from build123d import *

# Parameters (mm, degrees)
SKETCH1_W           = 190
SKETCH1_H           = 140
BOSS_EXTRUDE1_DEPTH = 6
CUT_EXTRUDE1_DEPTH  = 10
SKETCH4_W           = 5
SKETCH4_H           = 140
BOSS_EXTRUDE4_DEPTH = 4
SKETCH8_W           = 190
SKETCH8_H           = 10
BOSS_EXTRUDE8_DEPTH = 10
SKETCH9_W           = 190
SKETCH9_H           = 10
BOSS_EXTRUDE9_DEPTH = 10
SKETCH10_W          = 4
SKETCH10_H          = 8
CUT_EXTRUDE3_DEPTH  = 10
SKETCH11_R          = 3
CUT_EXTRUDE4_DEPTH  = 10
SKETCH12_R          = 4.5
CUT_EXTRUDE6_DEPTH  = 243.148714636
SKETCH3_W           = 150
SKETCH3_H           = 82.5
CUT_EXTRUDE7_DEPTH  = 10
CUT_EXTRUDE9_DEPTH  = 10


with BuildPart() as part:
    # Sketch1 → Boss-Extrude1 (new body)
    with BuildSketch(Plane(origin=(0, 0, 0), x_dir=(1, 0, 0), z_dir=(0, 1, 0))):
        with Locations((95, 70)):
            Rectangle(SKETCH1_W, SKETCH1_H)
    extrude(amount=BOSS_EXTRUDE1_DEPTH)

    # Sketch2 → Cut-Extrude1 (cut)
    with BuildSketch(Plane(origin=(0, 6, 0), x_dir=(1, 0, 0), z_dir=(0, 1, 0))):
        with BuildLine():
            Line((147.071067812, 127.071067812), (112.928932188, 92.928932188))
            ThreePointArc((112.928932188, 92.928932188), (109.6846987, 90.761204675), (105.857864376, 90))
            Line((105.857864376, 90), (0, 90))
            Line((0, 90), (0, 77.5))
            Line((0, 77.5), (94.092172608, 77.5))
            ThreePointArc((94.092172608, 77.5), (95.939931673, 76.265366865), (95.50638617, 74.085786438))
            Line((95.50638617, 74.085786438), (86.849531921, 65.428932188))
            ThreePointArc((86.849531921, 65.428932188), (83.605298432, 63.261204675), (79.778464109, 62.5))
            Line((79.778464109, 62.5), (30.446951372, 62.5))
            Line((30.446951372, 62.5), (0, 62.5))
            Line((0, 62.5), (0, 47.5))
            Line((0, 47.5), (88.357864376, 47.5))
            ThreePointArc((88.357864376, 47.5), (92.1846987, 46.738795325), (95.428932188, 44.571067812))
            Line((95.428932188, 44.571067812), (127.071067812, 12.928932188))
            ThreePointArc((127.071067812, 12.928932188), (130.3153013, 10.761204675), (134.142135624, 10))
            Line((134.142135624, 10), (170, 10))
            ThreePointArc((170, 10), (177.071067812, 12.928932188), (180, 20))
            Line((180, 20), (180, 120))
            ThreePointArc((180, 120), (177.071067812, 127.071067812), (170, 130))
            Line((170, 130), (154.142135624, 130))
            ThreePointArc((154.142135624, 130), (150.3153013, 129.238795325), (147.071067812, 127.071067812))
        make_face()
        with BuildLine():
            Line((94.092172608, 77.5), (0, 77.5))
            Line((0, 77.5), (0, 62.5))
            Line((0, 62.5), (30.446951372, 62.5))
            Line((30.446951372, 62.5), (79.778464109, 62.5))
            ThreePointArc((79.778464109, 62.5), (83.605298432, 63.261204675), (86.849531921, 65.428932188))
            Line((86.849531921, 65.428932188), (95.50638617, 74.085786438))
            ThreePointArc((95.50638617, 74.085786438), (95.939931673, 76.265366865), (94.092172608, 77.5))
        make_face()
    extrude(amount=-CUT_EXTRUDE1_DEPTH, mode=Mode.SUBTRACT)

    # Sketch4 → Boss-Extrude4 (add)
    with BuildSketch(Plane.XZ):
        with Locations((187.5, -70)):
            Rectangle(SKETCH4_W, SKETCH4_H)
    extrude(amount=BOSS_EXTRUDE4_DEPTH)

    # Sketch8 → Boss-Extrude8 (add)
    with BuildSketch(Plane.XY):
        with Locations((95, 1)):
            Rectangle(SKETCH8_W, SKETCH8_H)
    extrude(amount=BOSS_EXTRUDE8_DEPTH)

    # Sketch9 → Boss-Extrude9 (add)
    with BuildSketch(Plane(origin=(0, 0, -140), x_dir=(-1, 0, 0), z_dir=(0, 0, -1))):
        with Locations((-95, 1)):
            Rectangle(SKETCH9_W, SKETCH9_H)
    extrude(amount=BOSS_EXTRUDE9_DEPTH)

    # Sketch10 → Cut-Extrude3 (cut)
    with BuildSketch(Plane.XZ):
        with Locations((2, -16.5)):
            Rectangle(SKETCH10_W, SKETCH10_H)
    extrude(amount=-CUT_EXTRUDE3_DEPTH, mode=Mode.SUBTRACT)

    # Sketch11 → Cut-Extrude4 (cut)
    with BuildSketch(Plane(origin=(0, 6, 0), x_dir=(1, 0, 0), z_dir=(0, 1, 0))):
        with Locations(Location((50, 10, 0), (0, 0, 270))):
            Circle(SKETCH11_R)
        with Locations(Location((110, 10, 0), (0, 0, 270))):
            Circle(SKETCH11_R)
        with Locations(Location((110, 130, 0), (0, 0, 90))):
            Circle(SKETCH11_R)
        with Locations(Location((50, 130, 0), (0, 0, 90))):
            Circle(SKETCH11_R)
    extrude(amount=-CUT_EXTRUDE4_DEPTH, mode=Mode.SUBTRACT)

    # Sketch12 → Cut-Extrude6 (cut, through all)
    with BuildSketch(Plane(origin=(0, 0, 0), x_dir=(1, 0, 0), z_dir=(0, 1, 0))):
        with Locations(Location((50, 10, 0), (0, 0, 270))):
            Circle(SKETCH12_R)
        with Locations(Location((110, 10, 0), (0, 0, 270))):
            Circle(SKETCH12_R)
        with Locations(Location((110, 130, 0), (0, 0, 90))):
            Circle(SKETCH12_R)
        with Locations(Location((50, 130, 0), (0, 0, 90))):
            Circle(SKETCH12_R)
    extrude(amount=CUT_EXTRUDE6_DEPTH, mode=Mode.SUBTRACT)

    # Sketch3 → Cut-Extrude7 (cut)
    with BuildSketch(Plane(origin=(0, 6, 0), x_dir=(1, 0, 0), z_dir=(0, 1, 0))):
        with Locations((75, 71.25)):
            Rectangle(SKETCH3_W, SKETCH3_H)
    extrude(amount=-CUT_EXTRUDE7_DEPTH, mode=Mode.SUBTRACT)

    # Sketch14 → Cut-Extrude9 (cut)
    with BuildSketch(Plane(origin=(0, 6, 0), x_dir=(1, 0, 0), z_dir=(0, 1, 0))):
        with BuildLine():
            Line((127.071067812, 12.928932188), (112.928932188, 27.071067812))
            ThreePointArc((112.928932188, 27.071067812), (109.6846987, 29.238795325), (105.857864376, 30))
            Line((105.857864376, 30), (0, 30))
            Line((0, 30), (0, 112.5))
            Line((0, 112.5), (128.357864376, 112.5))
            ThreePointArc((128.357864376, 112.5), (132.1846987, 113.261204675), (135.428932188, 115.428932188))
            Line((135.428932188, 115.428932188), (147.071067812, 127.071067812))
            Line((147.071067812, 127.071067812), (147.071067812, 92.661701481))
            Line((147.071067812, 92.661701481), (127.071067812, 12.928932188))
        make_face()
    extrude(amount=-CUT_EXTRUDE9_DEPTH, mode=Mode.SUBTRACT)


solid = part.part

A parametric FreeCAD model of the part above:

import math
import FreeCAD as App
import Part
import Sketcher
from FreeCAD import Vector
Q = App.Units.Quantity

doc = App.newDocument("Part")
params = doc.addObject("Spreadsheet::Sheet", "Params")
for row, (alias, value) in enumerate([
    ("sketch1_width", "190 mm"),
    ("sketch1_height", "140 mm"),
    ("pad1_length", "6 mm"),
    ("sketch2_radius", "10 mm"),
    ("sketch2_height", "100 mm"),
    ("sketch2_height2", "42.5 mm"),
    ("pocket1_length", "10 mm"),
    ("sketch3_width", "5 mm"),
    ("sketch3_height", "140 mm"),
    ("pad2_length", "4 mm"),
    ("sketch4_width", "190 mm"),
    ("sketch4_height", "10 mm"),
    ("pad3_length", "10 mm"),
    ("sketch5_width", "190 mm"),
    ("sketch5_height", "10 mm"),
    ("pad4_length", "10 mm"),
    ("sketch6_width", "4 mm"),
    ("sketch6_height", "8 mm"),
    ("pocket2_length", "10 mm"),
    ("sketch7_diameter", "6 mm"),
    ("pocket3_length", "10 mm"),
    ("sketch8_diameter", "9 mm"),
    ("sketch9_width", "150 mm"),
    ("sketch9_height", "82.5 mm"),
    ("pocket5_length", "10 mm"),
    ("sketch10_radius", "10 mm"),
    ("sketch10_length", "20 mm"),
    ("sketch10_height", "82.5 mm"),
    ("pocket6_length", "10 mm"),
], start=1):
    params.set(f"A{row}", alias)
    params.set(f"B{row}", "=" + value)
    params.setAlias(f"B{row}", alias)

body = doc.addObject("PartDesign::Body", "Body")

sketch1 = body.newObject("Sketcher::SketchObject", "Sketch")
sketch1.AttachmentSupport = (doc.getObject("XZ_Plane"), [""])
sketch1.MapMode = "FlatFace"
sketch1.addGeometry([
    Part.LineSegment(Vector(0, -140, 0), Vector(0, 0, 0)),
    Part.LineSegment(Vector(0, 0, 0), Vector(190, 0, 0)),
    Part.LineSegment(Vector(190, 0, 0), Vector(190, -140, 0)),
    Part.LineSegment(Vector(190, -140, 0), Vector(0, -140, 0)),
], False)
sketch1.addConstraint([
    Sketcher.Constraint("Coincident", 0, 2, 1, 1),
    Sketcher.Constraint("Coincident", 1, 2, 2, 1),
    Sketcher.Constraint("Coincident", 2, 2, 3, 1),
    Sketcher.Constraint("Coincident", 3, 2, 0, 1),
    Sketcher.Constraint("Vertical", 0),
    Sketcher.Constraint("Horizontal", 1),
    Sketcher.Constraint("Vertical", 2),
    Sketcher.Constraint("Horizontal", 3),
    Sketcher.Constraint("Coincident", 0, 2, -1, 1),
    Sketcher.Constraint("DistanceX", 1, 1, 1, 2, Q("190 mm")),
    Sketcher.Constraint("DistanceY", 0, 1, 0, 2, Q("140 mm")),
])
sketch1.setExpression("Constraints[9]", "Params.sketch1_width")
sketch1.setExpression("Constraints[10]", "Params.sketch1_height")
pad1 = body.newObject("PartDesign::Pad", "Pad")
pad1.Profile = sketch1
pad1.setExpression("Length", "Params.pad1_length")
pad1.Reversed = True

sketch2 = body.newObject("Sketcher::SketchObject", "Sketch001")
sketch2.AttachmentSupport = (doc.getObject("XZ_Plane"), [""])
sketch2.MapMode = "FlatFace"
sketch2.AttachmentOffset = App.Placement(Vector(0, 0, -6), App.Rotation())
sketch2.addGeometry([
    Part.LineSegment(Vector(147.071068, -127.071068, 0), Vector(112.928932, -92.928932, 0)),
    Part.ArcOfCircle(Part.Circle(Vector(105.857864, -100, 0), Vector(0, 0, 1), 10), math.radians(45), math.radians(90)),
    Part.LineSegment(Vector(105.857864, -90, 0), Vector(0, -90, 0)),
    Part.LineSegment(Vector(0, -90, 0), Vector(0, -47.5, 0)),
    Part.LineSegment(Vector(0, -47.5, 0), Vector(88.357864, -47.5, 0)),
    Part.ArcOfCircle(Part.Circle(Vector(88.357864, -37.5, 0), Vector(0, 0, 1), 10), math.radians(-90), math.radians(-45)),
    Part.LineSegment(Vector(95.428932, -44.571068, 0), Vector(127.071068, -12.928932, 0)),
    Part.ArcOfCircle(Part.Circle(Vector(134.142136, -20, 0), Vector(0, 0, 1), 10), math.radians(90), math.radians(135)),
    Part.LineSegment(Vector(134.142136, -10, 0), Vector(170, -10, 0)),
    Part.ArcOfCircle(Part.Circle(Vector(170, -20, 0), Vector(0, 0, 1), 10), math.radians(0), math.radians(90)),
    Part.LineSegment(Vector(180, -20, 0), Vector(180, -120, 0)),
    Part.ArcOfCircle(Part.Circle(Vector(170, -120, 0), Vector(0, 0, 1), 10), math.radians(-90), math.radians(0)),
    Part.LineSegment(Vector(170, -130, 0), Vector(154.142136, -130, 0)),
    Part.ArcOfCircle(Part.Circle(Vector(154.142136, -120, 0), Vector(0, 0, 1), 10), math.radians(-135), math.radians(-90)),
], False)
sketch2.addConstraint([
    Sketcher.Constraint("Tangent", 0, 2, 1, 1),
    Sketcher.Constraint("Tangent", 1, 2, 2, 1),
    Sketcher.Constraint("Coincident", 2, 2, 3, 1),
    Sketcher.Constraint("Coincident", 3, 2, 4, 1),
    Sketcher.Constraint("Tangent", 4, 2, 5, 1),
    Sketcher.Constraint("Tangent", 5, 2, 6, 1),
    Sketcher.Constraint("Tangent", 6, 2, 7, 2),
    Sketcher.Constraint("Tangent", 7, 1, 8, 1),
    Sketcher.Constraint("Tangent", 8, 2, 9, 2),
    Sketcher.Constraint("Tangent", 9, 1, 10, 1),
    Sketcher.Constraint("Tangent", 10, 2, 11, 2),
    Sketcher.Constraint("Tangent", 11, 1, 12, 1),
    Sketcher.Constraint("Tangent", 12, 2, 13, 2),
    Sketcher.Constraint("Tangent", 13, 1, 0, 1),
    Sketcher.Constraint("Horizontal", 2),
    Sketcher.Constraint("Vertical", 3),
    Sketcher.Constraint("Horizontal", 4),
    Sketcher.Constraint("Horizontal", 8),
    Sketcher.Constraint("Vertical", 10),
    Sketcher.Constraint("Horizontal", 12),
    Sketcher.Constraint("Equal", 1, 5),
    Sketcher.Constraint("Equal", 5, 7),
    Sketcher.Constraint("Equal", 7, 9),
    Sketcher.Constraint("Equal", 9, 11),
    Sketcher.Constraint("Equal", 11, 13),
    Sketcher.Constraint("PointOnObject", 2, 2, -2),
    Sketcher.Constraint("Perpendicular", 0, 6),
    Sketcher.Constraint("Radius", 1, Q("10 mm")),
    Sketcher.Constraint("DistanceY", 10, 2, 10, 1, Q("100 mm")),
    Sketcher.Constraint("Angle", 0, Q("135 deg")),
    Sketcher.Constraint("DistanceY", 3, 1, 3, 2, Q("42.5 mm")),
    Sketcher.Constraint("DistanceY", 1, 3, -1, 1, Q("100 mm")),
    Sketcher.Constraint("DistanceY", 7, 3, -1, 1, Q("20 mm")),
    Sketcher.Constraint("DistanceX", -1, 1, 9, 3, Q("170 mm")),
    Sketcher.Constraint("DistanceX", 7, 3, 13, 3, Q("20 mm")),
    Sketcher.Constraint("DistanceX", 2, 2, 2, 1, Q("105.857864 mm")),
])
sketch2.setExpression("Constraints[27]", "Params.sketch2_radius")
sketch2.setExpression("Constraints[28]", "Params.sketch2_height")
sketch2.setExpression("Constraints[30]", "Params.sketch2_height2")
pocket1 = body.newObject("PartDesign::Pocket", "Pocket")
pocket1.Profile = sketch2
pocket1.setExpression("Length", "Params.pocket1_length")
pocket1.Reversed = True

sketch3 = body.newObject("Sketcher::SketchObject", "Sketch002")
sketch3.AttachmentSupport = (doc.getObject("XZ_Plane"), [""])
sketch3.MapMode = "FlatFace"
sketch3.addGeometry([
    Part.LineSegment(Vector(185, 0, 0), Vector(185, -140, 0)),
    Part.LineSegment(Vector(185, -140, 0), Vector(190, -140, 0)),
    Part.LineSegment(Vector(190, -140, 0), Vector(190, 0, 0)),
    Part.LineSegment(Vector(190, 0, 0), Vector(185, 0, 0)),
], False)
sketch3.addConstraint([
    Sketcher.Constraint("Coincident", 0, 2, 1, 1),
    Sketcher.Constraint("Coincident", 1, 2, 2, 1),
    Sketcher.Constraint("Coincident", 2, 2, 3, 1),
    Sketcher.Constraint("Coincident", 3, 2, 0, 1),
    Sketcher.Constraint("Vertical", 0),
    Sketcher.Constraint("Horizontal", 1),
    Sketcher.Constraint("Vertical", 2),
    Sketcher.Constraint("Horizontal", 3),
    Sketcher.Constraint("PointOnObject", 2, 2, -1),
    Sketcher.Constraint("DistanceX", 1, 1, 1, 2, Q("5 mm")),
    Sketcher.Constraint("DistanceY", 0, 2, 0, 1, Q("140 mm")),
    Sketcher.Constraint("DistanceX", -1, 1, 0, 2, Q("185 mm")),
])
sketch3.setExpression("Constraints[9]", "Params.sketch3_width")
sketch3.setExpression("Constraints[10]", "Params.sketch3_height")
pad2 = body.newObject("PartDesign::Pad", "Pad001")
pad2.Profile = sketch3
pad2.setExpression("Length", "Params.pad2_length")

sketch4 = body.newObject("Sketcher::SketchObject", "Sketch003")
sketch4.AttachmentSupport = (doc.getObject("XY_Plane"), [""])
sketch4.MapMode = "FlatFace"
sketch4.addGeometry([
    Part.LineSegment(Vector(0, 6, 0), Vector(0, -4, 0)),
    Part.LineSegment(Vector(0, -4, 0), Vector(190, -4, 0)),
    Part.LineSegment(Vector(190, -4, 0), Vector(190, 6, 0)),
    Part.LineSegment(Vector(190, 6, 0), Vector(0, 6, 0)),
], False)
sketch4.addConstraint([
    Sketcher.Constraint("Coincident", 0, 2, 1, 1),
    Sketcher.Constraint("Coincident", 1, 2, 2, 1),
    Sketcher.Constraint("Coincident", 2, 2, 3, 1),
    Sketcher.Constraint("Coincident", 3, 2, 0, 1),
    Sketcher.Constraint("Vertical", 0),
    Sketcher.Constraint("Horizontal", 1),
    Sketcher.Constraint("Vertical", 2),
    Sketcher.Constraint("Horizontal", 3),
    Sketcher.Constraint("PointOnObject", 0, 2, -2),
    Sketcher.Constraint("DistanceX", 1, 1, 1, 2, Q("190 mm")),
    Sketcher.Constraint("DistanceY", 0, 2, 0, 1, Q("10 mm")),
    Sketcher.Constraint("DistanceY", 0, 2, -1, 1, Q("4 mm")),
])
sketch4.setExpression("Constraints[9]", "Params.sketch4_width")
sketch4.setExpression("Constraints[10]", "Params.sketch4_height")
pad3 = body.newObject("PartDesign::Pad", "Pad002")
pad3.Profile = sketch4
pad3.setExpression("Length", "Params.pad3_length")

sketch5 = body.newObject("Sketcher::SketchObject", "Sketch004")
sketch5.AttachmentSupport = (doc.getObject("XY_Plane"), [""])
sketch5.MapMode = "FlatFace"
sketch5.AttachmentOffset = App.Placement(Vector(0, 0, -140), App.Rotation())
sketch5.addGeometry([
    Part.LineSegment(Vector(190, 6, 0), Vector(190, -4, 0)),
    Part.LineSegment(Vector(190, -4, 0), Vector(0, -4, 0)),
    Part.LineSegment(Vector(0, -4, 0), Vector(0, 6, 0)),
    Part.LineSegment(Vector(0, 6, 0), Vector(190, 6, 0)),
], False)
sketch5.addConstraint([
    Sketcher.Constraint("Coincident", 0, 2, 1, 1),
    Sketcher.Constraint("Coincident", 1, 2, 2, 1),
    Sketcher.Constraint("Coincident", 2, 2, 3, 1),
    Sketcher.Constraint("Coincident", 3, 2, 0, 1),
    Sketcher.Constraint("Vertical", 0),
    Sketcher.Constraint("Horizontal", 1),
    Sketcher.Constraint("Vertical", 2),
    Sketcher.Constraint("Horizontal", 3),
    Sketcher.Constraint("PointOnObject", 1, 2, -2),
    Sketcher.Constraint("DistanceX", 1, 2, 1, 1, Q("190 mm")),
    Sketcher.Constraint("DistanceY", 0, 2, 0, 1, Q("10 mm")),
    Sketcher.Constraint("DistanceY", 0, 2, -1, 1, Q("4 mm")),
])
sketch5.setExpression("Constraints[9]", "Params.sketch5_width")
sketch5.setExpression("Constraints[10]", "Params.sketch5_height")
pad4 = body.newObject("PartDesign::Pad", "Pad003")
pad4.Profile = sketch5
pad4.setExpression("Length", "Params.pad4_length")
pad4.Reversed = True

sketch6 = body.newObject("Sketcher::SketchObject", "Sketch005")
sketch6.AttachmentSupport = (doc.getObject("XZ_Plane"), [""])
sketch6.MapMode = "FlatFace"
sketch6.addGeometry([
    Part.LineSegment(Vector(0, -12.5, 0), Vector(0, -20.5, 0)),
    Part.LineSegment(Vector(0, -20.5, 0), Vector(4, -20.5, 0)),
    Part.LineSegment(Vector(4, -20.5, 0), Vector(4, -12.5, 0)),
    Part.LineSegment(Vector(4, -12.5, 0), Vector(0, -12.5, 0)),
], False)
sketch6.addConstraint([
    Sketcher.Constraint("Coincident", 0, 2, 1, 1),
    Sketcher.Constraint("Coincident", 1, 2, 2, 1),
    Sketcher.Constraint("Coincident", 2, 2, 3, 1),
    Sketcher.Constraint("Coincident", 3, 2, 0, 1),
    Sketcher.Constraint("Vertical", 0),
    Sketcher.Constraint("Horizontal", 1),
    Sketcher.Constraint("Vertical", 2),
    Sketcher.Constraint("Horizontal", 3),
    Sketcher.Constraint("PointOnObject", 0, 2, -2),
    Sketcher.Constraint("DistanceX", 1, 1, 1, 2, Q("4 mm")),
    Sketcher.Constraint("DistanceY", 0, 2, 0, 1, Q("8 mm")),
    Sketcher.Constraint("DistanceY", 0, 2, -1, 1, Q("20.5 mm")),
])
sketch6.setExpression("Constraints[9]", "Params.sketch6_width")
sketch6.setExpression("Constraints[10]", "Params.sketch6_height")
pocket2 = body.newObject("PartDesign::Pocket", "Pocket001")
pocket2.Profile = sketch6
pocket2.setExpression("Length", "Params.pocket2_length")

sketch7 = body.newObject("Sketcher::SketchObject", "Sketch006")
sketch7.AttachmentSupport = (doc.getObject("XZ_Plane"), [""])
sketch7.MapMode = "FlatFace"
sketch7.AttachmentOffset = App.Placement(Vector(0, 0, -6), App.Rotation())
sketch7.addGeometry([
    Part.Circle(Vector(50, -10, 0), Vector(0, 0, 1), 3),
    Part.Circle(Vector(110, -10, 0), Vector(0, 0, 1), 3),
    Part.Circle(Vector(110, -130, 0), Vector(0, 0, 1), 3),
    Part.Circle(Vector(50, -130, 0), Vector(0, 0, 1), 3),
], False)
sketch7.addConstraint([
    Sketcher.Constraint("Equal", 0, 1),
    Sketcher.Constraint("Equal", 1, 2),
    Sketcher.Constraint("Equal", 2, 3),
    Sketcher.Constraint("Horizontal", 0, 3, 1, 3),
    Sketcher.Constraint("Horizontal", 2, 3, 3, 3),
    Sketcher.Constraint("Vertical", 1, 3, 2, 3),
    Sketcher.Constraint("Vertical", 0, 3, 3, 3),
    Sketcher.Constraint("Diameter", 0, Q("6 mm")),
    Sketcher.Constraint("DistanceX", -1, 1, 0, 3, Q("50 mm")),
    Sketcher.Constraint("DistanceY", 0, 3, -1, 1, Q("10 mm")),
    Sketcher.Constraint("DistanceX", -1, 1, 1, 3, Q("110 mm")),
    Sketcher.Constraint("DistanceY", 2, 3, -1, 1, Q("130 mm")),
])
sketch7.setExpression("Constraints[7]", "Params.sketch7_diameter")
pocket3 = body.newObject("PartDesign::Pocket", "Pocket002")
pocket3.Profile = sketch7
pocket3.setExpression("Length", "Params.pocket3_length")
pocket3.Reversed = True

sketch8 = body.newObject("Sketcher::SketchObject", "Sketch007")
sketch8.AttachmentSupport = (doc.getObject("XZ_Plane"), [""])
sketch8.MapMode = "FlatFace"
sketch8.addGeometry([
    Part.Circle(Vector(50, -10, 0), Vector(0, 0, 1), 4.5),
    Part.Circle(Vector(110, -10, 0), Vector(0, 0, 1), 4.5),
    Part.Circle(Vector(110, -130, 0), Vector(0, 0, 1), 4.5),
    Part.Circle(Vector(50, -130, 0), Vector(0, 0, 1), 4.5),
], False)
sketch8.addConstraint([
    Sketcher.Constraint("Equal", 0, 1),
    Sketcher.Constraint("Equal", 1, 2),
    Sketcher.Constraint("Equal", 2, 3),
    Sketcher.Constraint("Horizontal", 0, 3, 1, 3),
    Sketcher.Constraint("Horizontal", 2, 3, 3, 3),
    Sketcher.Constraint("Vertical", 1, 3, 2, 3),
    Sketcher.Constraint("Vertical", 0, 3, 3, 3),
    Sketcher.Constraint("Diameter", 0, Q("9 mm")),
    Sketcher.Constraint("DistanceX", -1, 1, 0, 3, Q("50 mm")),
    Sketcher.Constraint("DistanceY", 0, 3, -1, 1, Q("10 mm")),
    Sketcher.Constraint("DistanceX", -1, 1, 1, 3, Q("110 mm")),
    Sketcher.Constraint("DistanceY", 2, 3, -1, 1, Q("130 mm")),
])
sketch8.setExpression("Constraints[7]", "Params.sketch8_diameter")
pocket4 = body.newObject("PartDesign::Pocket", "Pocket003")
pocket4.Profile = sketch8
pocket4.Type = "ThroughAll"

sketch9 = body.newObject("Sketcher::SketchObject", "Sketch008")
sketch9.AttachmentSupport = (doc.getObject("XZ_Plane"), [""])
sketch9.MapMode = "FlatFace"
sketch9.AttachmentOffset = App.Placement(Vector(0, 0, -6), App.Rotation())
sketch9.addGeometry([
    Part.LineSegment(Vector(0, -112.5, 0), Vector(0, -30, 0)),
    Part.LineSegment(Vector(0, -30, 0), Vector(150, -30, 0)),
    Part.LineSegment(Vector(150, -30, 0), Vector(150, -112.5, 0)),
    Part.LineSegment(Vector(150, -112.5, 0), Vector(0, -112.5, 0)),
], False)
sketch9.addConstraint([
    Sketcher.Constraint("Coincident", 0, 2, 1, 1),
    Sketcher.Constraint("Coincident", 1, 2, 2, 1),
    Sketcher.Constraint("Coincident", 2, 2, 3, 1),
    Sketcher.Constraint("Coincident", 3, 2, 0, 1),
    Sketcher.Constraint("Vertical", 0),
    Sketcher.Constraint("Horizontal", 1),
    Sketcher.Constraint("Vertical", 2),
    Sketcher.Constraint("Horizontal", 3),
    Sketcher.Constraint("PointOnObject", 0, 2, -2),
    Sketcher.Constraint("DistanceX", 1, 1, 1, 2, Q("150 mm")),
    Sketcher.Constraint("DistanceY", 0, 1, 0, 2, Q("82.5 mm")),
    Sketcher.Constraint("DistanceY", 0, 2, -1, 1, Q("30 mm")),
])
sketch9.setExpression("Constraints[9]", "Params.sketch9_width")
sketch9.setExpression("Constraints[10]", "Params.sketch9_height")
pocket5 = body.newObject("PartDesign::Pocket", "Pocket004")
pocket5.Profile = sketch9
pocket5.setExpression("Length", "Params.pocket5_length")
pocket5.Reversed = True

sketch10 = body.newObject("Sketcher::SketchObject", "Sketch009")
sketch10.AttachmentSupport = (doc.getObject("XZ_Plane"), [""])
sketch10.MapMode = "FlatFace"
sketch10.AttachmentOffset = App.Placement(Vector(0, 0, -6), App.Rotation())
sketch10.addGeometry([
    Part.LineSegment(Vector(112.928932, -27.071068, 0), Vector(127.071068, -12.928932, 0)),
    Part.LineSegment(Vector(127.071068, -12.928932, 0), Vector(147.071068, -92.661701, 0)),
    Part.LineSegment(Vector(147.071068, -92.661701, 0), Vector(147.071068, -127.071068, 0)),
    Part.LineSegment(Vector(147.071068, -127.071068, 0), Vector(135.428932, -115.428932, 0)),
    Part.ArcOfCircle(Part.Circle(Vector(128.357864, -122.5, 0), Vector(0, 0, 1), 10), math.radians(45), math.radians(90)),
    Part.LineSegment(Vector(128.357864, -112.5, 0), Vector(0, -112.5, 0)),
    Part.LineSegment(Vector(0, -112.5, 0), Vector(0, -30, 0)),
    Part.LineSegment(Vector(0, -30, 0), Vector(105.857864, -30, 0)),
    Part.ArcOfCircle(Part.Circle(Vector(105.857864, -20, 0), Vector(0, 0, 1), 10), math.radians(-90), math.radians(-45)),
], False)
sketch10.addConstraint([
    Sketcher.Constraint("Coincident", 0, 2, 1, 1),
    Sketcher.Constraint("Coincident", 1, 2, 2, 1),
    Sketcher.Constraint("Coincident", 2, 2, 3, 1),
    Sketcher.Constraint("Tangent", 3, 2, 4, 1),
    Sketcher.Constraint("Tangent", 4, 2, 5, 1),
    Sketcher.Constraint("Coincident", 5, 2, 6, 1),
    Sketcher.Constraint("Coincident", 6, 2, 7, 1),
    Sketcher.Constraint("Tangent", 7, 2, 8, 1),
    Sketcher.Constraint("Tangent", 8, 2, 0, 1),
    Sketcher.Constraint("Vertical", 2),
    Sketcher.Constraint("Horizontal", 5),
    Sketcher.Constraint("Vertical", 6),
    Sketcher.Constraint("Horizontal", 7),
    Sketcher.Constraint("Equal", 4, 8),
    Sketcher.Constraint("PointOnObject", 5, 2, -2),
    Sketcher.Constraint("Perpendicular", 0, 3),
    Sketcher.Constraint("Radius", 4, Q("10 mm")),
    Sketcher.Constraint("Angle", 0, Q("45 deg")),
    Sketcher.Constraint("Distance", 0, Q("20 mm")),
    Sketcher.Constraint("DistanceY", 6, 1, 6, 2, Q("82.5 mm")),
    Sketcher.Constraint("DistanceY", 8, 3, -1, 1, Q("20 mm")),
    Sketcher.Constraint("DistanceX", 0, 2, 1, 2, Q("20 mm")),
    Sketcher.Constraint("DistanceX", 8, 3, 4, 3, Q("22.5 mm")),
    Sketcher.Constraint("DistanceY", 1, 2, -1, 1, Q("92.661701 mm")),
    Sketcher.Constraint("DistanceX", 5, 2, 5, 1, Q("128.357864 mm")),
])
sketch10.setExpression("Constraints[16]", "Params.sketch10_radius")
sketch10.setExpression("Constraints[18]", "Params.sketch10_length")
sketch10.setExpression("Constraints[19]", "Params.sketch10_height")
pocket6 = body.newObject("PartDesign::Pocket", "Pocket005")
pocket6.Profile = sketch10
pocket6.setExpression("Length", "Params.pocket6_length")
pocket6.Reversed = True

doc.recompute()
